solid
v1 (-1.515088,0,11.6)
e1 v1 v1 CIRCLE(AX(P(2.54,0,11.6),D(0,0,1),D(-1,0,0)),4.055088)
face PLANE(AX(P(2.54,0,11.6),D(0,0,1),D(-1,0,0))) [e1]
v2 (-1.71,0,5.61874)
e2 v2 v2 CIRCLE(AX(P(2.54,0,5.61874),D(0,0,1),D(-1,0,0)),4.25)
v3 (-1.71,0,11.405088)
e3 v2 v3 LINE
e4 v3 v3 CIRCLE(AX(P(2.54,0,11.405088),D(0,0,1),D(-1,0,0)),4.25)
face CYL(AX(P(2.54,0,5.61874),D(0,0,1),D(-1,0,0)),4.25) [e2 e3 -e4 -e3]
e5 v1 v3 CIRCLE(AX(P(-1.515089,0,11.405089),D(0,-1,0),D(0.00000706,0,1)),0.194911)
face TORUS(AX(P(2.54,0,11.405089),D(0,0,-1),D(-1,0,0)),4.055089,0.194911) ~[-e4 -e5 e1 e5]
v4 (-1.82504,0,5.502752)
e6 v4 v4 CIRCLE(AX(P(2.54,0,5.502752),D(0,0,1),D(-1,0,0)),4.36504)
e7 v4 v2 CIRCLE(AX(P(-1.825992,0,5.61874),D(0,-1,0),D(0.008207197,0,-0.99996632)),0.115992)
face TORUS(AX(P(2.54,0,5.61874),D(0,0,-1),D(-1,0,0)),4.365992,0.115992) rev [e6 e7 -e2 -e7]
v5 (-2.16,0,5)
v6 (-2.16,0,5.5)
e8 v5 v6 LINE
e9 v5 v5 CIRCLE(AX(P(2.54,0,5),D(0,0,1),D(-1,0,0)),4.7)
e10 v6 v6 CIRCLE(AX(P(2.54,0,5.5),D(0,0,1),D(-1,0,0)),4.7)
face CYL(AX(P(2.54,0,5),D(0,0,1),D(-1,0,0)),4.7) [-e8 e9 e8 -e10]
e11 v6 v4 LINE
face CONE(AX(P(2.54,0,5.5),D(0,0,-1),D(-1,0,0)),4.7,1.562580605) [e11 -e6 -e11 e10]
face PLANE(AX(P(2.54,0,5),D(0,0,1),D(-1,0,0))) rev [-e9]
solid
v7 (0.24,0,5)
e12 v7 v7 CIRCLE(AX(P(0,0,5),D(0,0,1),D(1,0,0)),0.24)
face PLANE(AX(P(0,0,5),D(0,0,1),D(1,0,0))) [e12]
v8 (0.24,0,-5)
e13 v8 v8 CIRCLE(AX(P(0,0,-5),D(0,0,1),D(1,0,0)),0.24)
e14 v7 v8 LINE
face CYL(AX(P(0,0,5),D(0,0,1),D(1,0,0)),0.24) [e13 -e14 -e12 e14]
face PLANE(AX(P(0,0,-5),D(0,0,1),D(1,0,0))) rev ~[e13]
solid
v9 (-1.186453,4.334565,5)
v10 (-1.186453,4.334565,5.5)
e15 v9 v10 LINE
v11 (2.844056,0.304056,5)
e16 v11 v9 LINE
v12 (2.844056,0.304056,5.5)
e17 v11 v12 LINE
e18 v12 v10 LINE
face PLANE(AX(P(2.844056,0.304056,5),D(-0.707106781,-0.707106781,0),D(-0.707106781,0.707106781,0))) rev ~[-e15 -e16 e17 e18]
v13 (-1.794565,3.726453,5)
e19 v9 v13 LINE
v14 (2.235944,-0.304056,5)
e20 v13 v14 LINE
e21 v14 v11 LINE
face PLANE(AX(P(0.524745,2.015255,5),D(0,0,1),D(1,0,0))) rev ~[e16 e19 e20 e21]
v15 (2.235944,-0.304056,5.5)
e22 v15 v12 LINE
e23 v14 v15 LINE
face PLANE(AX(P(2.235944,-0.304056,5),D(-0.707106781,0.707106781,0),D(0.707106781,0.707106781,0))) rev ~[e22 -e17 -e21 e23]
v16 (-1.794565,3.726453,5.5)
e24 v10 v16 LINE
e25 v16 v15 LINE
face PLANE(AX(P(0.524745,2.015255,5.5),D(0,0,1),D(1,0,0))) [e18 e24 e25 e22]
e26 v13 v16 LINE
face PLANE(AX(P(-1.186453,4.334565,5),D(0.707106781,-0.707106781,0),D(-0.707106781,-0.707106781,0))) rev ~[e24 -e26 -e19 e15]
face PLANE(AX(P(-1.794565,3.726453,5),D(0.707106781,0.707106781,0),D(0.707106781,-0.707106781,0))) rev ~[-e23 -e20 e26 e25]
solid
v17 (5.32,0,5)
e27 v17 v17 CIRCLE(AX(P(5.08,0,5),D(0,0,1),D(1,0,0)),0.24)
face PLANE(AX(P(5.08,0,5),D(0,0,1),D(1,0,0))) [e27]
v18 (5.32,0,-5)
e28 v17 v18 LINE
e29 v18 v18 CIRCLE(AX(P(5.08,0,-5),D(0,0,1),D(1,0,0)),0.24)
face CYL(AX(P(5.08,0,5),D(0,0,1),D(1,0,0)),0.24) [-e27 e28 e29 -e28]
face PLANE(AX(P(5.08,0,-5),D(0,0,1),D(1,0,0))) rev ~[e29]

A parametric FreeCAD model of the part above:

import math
import FreeCAD as App
import Part
import Sketcher
from FreeCAD import Vector
Q = App.Units.Quantity


def add_polygon(sketch, points):
    """Adds a closed chain of lines whose ends are joined by coincident constraints."""
    first, n = sketch.GeometryCount, len(points)
    for a, b in zip(points, points[1:] + points[:1]):
        sketch.addGeometry(Part.LineSegment(App.Vector(*a, 0), App.Vector(*b, 0)), False)
    for i in range(n):
        sketch.addConstraint(Sketcher.Constraint("Coincident", first + i, 2, first + (i + 1) % n, 1))

doc = App.newDocument("Part")
body = doc.addObject("PartDesign::Body", "Body")
body.AllowCompound = True

# Sketch on XY plane
sketch1 = body.newObject("Sketcher::SketchObject", "Sketch")
sketch1.AttachmentSupport = (doc.getObject("XY_Plane"), [""])
sketch1.MapMode = "FlatFace"
sketch1.AttachmentOffset = App.Placement(Vector(0, 0, 5), App.Rotation())
sketch1.addGeometry(Part.Circle(Vector(0, 0, 0), Vector(0, 0, 1), 0.24), False)
sketch1.addGeometry(Part.Circle(Vector(5.08, 0, 0), Vector(0, 0, 1), 0.24), False)
sketch1.addConstraint(Sketcher.Constraint("Coincident", 0, 3, -1, 1))
sketch1.addConstraint(Sketcher.Constraint("Equal", 0, 1))
sketch1.addConstraint(Sketcher.Constraint("PointOnObject", 1, 3, -1))
sketch1.addConstraint(Sketcher.Constraint("Diameter", 0, Q("0.48 mm")))
sketch1.addConstraint(Sketcher.Constraint("DistanceX", -1, 1, 1, 3, Q("5.08 mm")))
pad1 = body.newObject("PartDesign::Pad", "Pad")
pad1.Profile = sketch1
pad1.Length = 10
pad1.Reversed = True
body2 = doc.addObject("PartDesign::Body", "Body001")

# Sketch on XZ plane
sketch2 = body2.newObject("Sketcher::SketchObject", "Sketch001")
sketch2.AttachmentSupport = (doc.getObject("XZ_Plane001"), [""])
sketch2.MapMode = "FlatFace"
sketch2.addGeometry(Part.LineSegment(Vector(-2.16, 5, 0), Vector(2.54, 5, 0)), False)
sketch2.addGeometry(Part.LineSegment(Vector(2.54, 5, 0), Vector(2.54, 11.6, 0)), False)
sketch2.addGeometry(Part.LineSegment(Vector(2.54, 11.6, 0), Vector(-1.52, 11.6, 0)), False)
sketch2.addGeometry(Part.ArcOfCircle(Part.Circle(Vector(-1.52, 11.41, 0), Vector(0, 0, 1), 0.19), math.radians(90), math.radians(180)), False)
sketch2.addGeometry(Part.LineSegment(Vector(-1.71, 11.41, 0), Vector(-1.71, 5.62, 0)), False)
sketch2.addGeometry(Part.ArcOfCircle(Part.Circle(Vector(-1.83, 5.62, 0), Vector(0, 0, 1), 0.12), math.radians(-90), math.radians(0)), False)
sketch2.addGeometry(Part.LineSegment(Vector(-1.83, 5.5, 0), Vector(-2.16, 5.5, 0)), False)
sketch2.addGeometry(Part.LineSegment(Vector(-2.16, 5.5, 0), Vector(-2.16, 5, 0)), False)
sketch2.addGeometry(Part.LineSegment(Vector(2.54, 5, 0), Vector(2.54, 11.6, 0)), True)  # axis
sketch2.addConstraint(Sketcher.Constraint("Coincident", 0, 2, 1, 1))
sketch2.addConstraint(Sketcher.Constraint("Coincident", 1, 2, 2, 1))
sketch2.addConstraint(Sketcher.Constraint("Coincident", 2, 2, 3, 1))
sketch2.addConstraint(Sketcher.Constraint("Coincident", 3, 2, 4, 1))
sketch2.addConstraint(Sketcher.Constraint("Tangent", 4, 2, 5, 2))
sketch2.addConstraint(Sketcher.Constraint("Coincident", 5, 1, 6, 1))
sketch2.addConstraint(Sketcher.Constraint("Coincident", 6, 2, 7, 1))
sketch2.addConstraint(Sketcher.Constraint("Coincident", 7, 2, 0, 1))
sketch2.addConstraint(Sketcher.Constraint("Horizontal", 0))
sketch2.addConstraint(Sketcher.Constraint("Vertical", 1))
sketch2.addConstraint(Sketcher.Constraint("Horizontal", 2))
sketch2.addConstraint(Sketcher.Constraint("Vertical", 4))
sketch2.addConstraint(Sketcher.Constraint("Vertical", 7))
sketch2.addConstraint(Sketcher.Constraint("Vertical", 8))
sketch2.addConstraint(Sketcher.Constraint("Coincident", 8, 1, 0, 2))
sketch2.addConstraint(Sketcher.Constraint("Horizontal", 2, 2, 8, 2))
sketch2.addConstraint(Sketcher.Constraint("Vertical", 3, 3, 2, 2))
sketch2.addConstraint(Sketcher.Constraint("DistanceX", 0, 1, 0, 2, Q("4.7 mm")))
sketch2.addConstraint(Sketcher.Constraint("DistanceY", 1, 1, 1, 2, Q("6.6 mm")))
sketch2.addConstraint(Sketcher.Constraint("DistanceY", 7, 2, 7, 1, Q("0.5 mm")))
sketch2.addConstraint(Sketcher.Constraint("DistanceY", -1, 1, 0, 2, Q("5 mm")))
sketch2.addConstraint(Sketcher.Constraint("DistanceX", -1, 1, 0, 2, Q("2.54 mm")))
sketch2.addConstraint(Sketcher.Constraint("DistanceX", 3, 2, -1, 1, Q("1.71 mm")))
sketch2.addConstraint(Sketcher.Constraint("Radius", 3, Q("0.194911 mm")))
sketch2.addConstraint(Sketcher.Constraint("Radius", 5, Q("0.115992 mm")))
sketch2.addConstraint(Sketcher.Constraint("Distance", 6, Q("0.334971 mm")))
sketch2.addConstraint(Sketcher.Constraint("DistanceY", 4, 2, 4, 1, Q("5.786348 mm")))
sketch2.addConstraint(Sketcher.Constraint("DistanceY", -1, 1, 5, 3, Q("5.61874 mm")))
revolution = body2.newObject("PartDesign::Revolution", "Revolution")
revolution.Profile = sketch2
revolution.ReferenceAxis = (sketch2, ["Axis0"])
revolution.Angle = 360
body3 = doc.addObject("PartDesign::Body", "Body002")

# Sketch on XY plane
sketch3 = body3.newObject("Sketcher::SketchObject", "Sketch002")
sketch3.AttachmentSupport = (doc.getObject("XY_Plane002"), [""])
sketch3.MapMode = "FlatFace"
sketch3.AttachmentOffset = App.Placement(Vector(0, 0, 5), App.Rotation())
add_polygon(sketch3, [(2.8, 0.3), (-1.2, 4.3), (-1.8, 3.7), (2.2, -0.3)])  # lines 0-3
sketch3.addConstraint(Sketcher.Constraint("Perpendicular", 0, 1))
sketch3.addConstraint(Sketcher.Constraint("Perpendicular", 1, 2))
sketch3.addConstraint(Sketcher.Constraint("Perpendicular", 2, 3))
sketch3.addConstraint(Sketcher.Constraint("Angle", 0, Q("135 deg")))
sketch3.addConstraint(Sketcher.Constraint("Distance", 0, Q("5.7 mm")))
sketch3.addConstraint(Sketcher.Constraint("Distance", 1, Q("0.86 mm")))
sketch3.addConstraint(Sketcher.Constraint("DistanceX", 0, 2, -1, 1, Q("1.186453 mm")))
sketch3.addConstraint(Sketcher.Constraint("DistanceY", -1, 1, 0, 2, Q("4.334565 mm")))
pad2 = body3.newObject("PartDesign::Pad", "Pad001")
pad2.Profile = sketch3
pad2.Length = 0.5

doc.recompute()
